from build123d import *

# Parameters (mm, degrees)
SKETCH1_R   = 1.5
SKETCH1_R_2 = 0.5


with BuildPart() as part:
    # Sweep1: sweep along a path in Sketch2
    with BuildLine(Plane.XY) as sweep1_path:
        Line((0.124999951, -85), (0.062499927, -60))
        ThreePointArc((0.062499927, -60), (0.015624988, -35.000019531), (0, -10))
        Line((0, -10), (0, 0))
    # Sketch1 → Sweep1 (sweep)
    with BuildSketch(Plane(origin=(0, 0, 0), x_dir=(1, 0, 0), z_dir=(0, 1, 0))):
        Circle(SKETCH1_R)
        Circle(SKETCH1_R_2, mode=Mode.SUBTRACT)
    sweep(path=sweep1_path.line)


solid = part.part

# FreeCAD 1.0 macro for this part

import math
import FreeCAD as App
import Part
import Sketcher

V = App.Vector
Q = App.Units.Quantity

doc = App.newDocument("Part")
body = doc.addObject("PartDesign::Body", "Body")

# Sketch on XZ plane
sketch1 = body.newObject("Sketcher::SketchObject", "Sketch")
sketch1.AttachmentSupport = (doc.getObject("XZ_Plane"), [""])
sketch1.MapMode = "FlatFace"
sketch1.addGeometry(Part.Circle(V(0, 0, 0), V(0, 0, 1), 1.5), False)
sketch1.addGeometry(Part.Circle(V(0, 0, 0), V(0, 0, 1), 0.5), False)
sketch1.addConstraint(Sketcher.Constraint("Coincident", 0, 3, -1, 1))
sketch1.addConstraint(Sketcher.Constraint("Coincident", 1, 3, -1, 1))
sketch1.addConstraint(Sketcher.Constraint("Diameter", 0, Q("3 mm")))
sketch1.addConstraint(Sketcher.Constraint("Diameter", 1, Q("1 mm")))

# Sketch on XY plane
sketch2 = body.newObject("Sketcher::SketchObject", "Sketch001")
sketch2.AttachmentSupport = (doc.getObject("XY_Plane"), [""])
sketch2.MapMode = "FlatFace"
sketch2.addGeometry(Part.LineSegment(V(0, -85, 0), V(0, -60, 0)), False)
sketch2.addGeometry(Part.ArcOfCircle(Part.Circle(V(20000, -10, 0), V(0, 0, 1), 20000), math.radians(-180), math.radians(-179.86)), False)
sketch2.addGeometry(Part.LineSegment(V(0, -10, 0), V(0, 0, 0)), False)
sketch2.addConstraint(Sketcher.Constraint("Tangent", 0, 2, 1, 2))
sketch2.addConstraint(Sketcher.Constraint("Tangent", 1, 1, 2, 1))
sketch2.addConstraint(Sketcher.Constraint("Coincident", 2, 2, -1, 1))
sketch2.addConstraint(Sketcher.Constraint("DistanceY", 2, 1, 2, 2, Q("10 mm")))
sketch2.addConstraint(Sketcher.Constraint("DistanceY", 1, 3, -1, 1, Q("10 mm")))
sketch2.addConstraint(Sketcher.Constraint("DistanceY", 0, 1, -1, 1, Q("85 mm")))
sketch2.addConstraint(Sketcher.Constraint("DistanceY", 0, 2, -1, 1, Q("60 mm")))
sketch2.addConstraint(Sketcher.Constraint("Radius", 1, Q("20000.054799 mm")))
doc.recompute()

additivepipe = body.newObject("PartDesign::AdditivePipe", "AdditivePipe")
additivepipe.Profile = sketch1
additivepipe.Spine = (sketch2, ["Edge1", "Edge2", "Edge3"])

doc.recompute()
